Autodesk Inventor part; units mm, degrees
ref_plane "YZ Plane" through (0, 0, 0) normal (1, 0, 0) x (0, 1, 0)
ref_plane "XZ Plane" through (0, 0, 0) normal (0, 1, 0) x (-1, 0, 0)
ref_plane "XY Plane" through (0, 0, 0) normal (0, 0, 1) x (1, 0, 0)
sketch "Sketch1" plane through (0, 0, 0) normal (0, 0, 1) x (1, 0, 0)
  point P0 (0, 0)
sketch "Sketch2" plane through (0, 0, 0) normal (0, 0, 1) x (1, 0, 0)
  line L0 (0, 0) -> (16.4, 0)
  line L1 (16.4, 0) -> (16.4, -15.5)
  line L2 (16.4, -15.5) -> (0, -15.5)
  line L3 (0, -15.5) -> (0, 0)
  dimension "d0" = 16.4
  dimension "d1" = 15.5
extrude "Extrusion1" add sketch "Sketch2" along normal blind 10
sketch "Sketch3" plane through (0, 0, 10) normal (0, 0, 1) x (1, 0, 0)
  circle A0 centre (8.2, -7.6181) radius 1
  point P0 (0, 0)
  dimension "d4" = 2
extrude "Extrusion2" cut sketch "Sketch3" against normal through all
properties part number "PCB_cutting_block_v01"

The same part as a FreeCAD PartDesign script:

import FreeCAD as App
import Part
import Sketcher
Q = App.Units.Quantity

doc = App.newDocument("Part")
params = doc.addObject("Spreadsheet::Sheet", "Params")
for row, (alias, value) in enumerate([
    ("sketch1_width", "16.4 mm"),
    ("sketch1_height", "15.5 mm"),
    ("pad1_length", "10 mm"),
    ("sketch2_diameter", "2 mm"),
], start=1):
    params.set(f"A{row}", alias)
    params.set(f"B{row}", "=" + value)
    params.setAlias(f"B{row}", alias)

body = doc.addObject("PartDesign::Body", "Body")

# Sketch on XY plane
sketch1 = body.newObject("Sketcher::SketchObject", "Sketch")
sketch1.AttachmentSupport = (doc.getObject("XY_Plane"), [""])
sketch1.MapMode = "FlatFace"
sketch1.addGeometry(Part.LineSegment(App.Vector(16.4, 0, 0), App.Vector(0, 0, 0)), False)
sketch1.addGeometry(Part.LineSegment(App.Vector(0, 0, 0), App.Vector(0, -15.5, 0)), False)
sketch1.addGeometry(Part.LineSegment(App.Vector(0, -15.5, 0), App.Vector(16.4, -15.5, 0)), False)
sketch1.addGeometry(Part.LineSegment(App.Vector(16.4, -15.5, 0), App.Vector(16.4, 0, 0)), False)
sketch1.addConstraint(Sketcher.Constraint("Coincident", 0, 2, 1, 1))
sketch1.addConstraint(Sketcher.Constraint("Coincident", 1, 2, 2, 1))
sketch1.addConstraint(Sketcher.Constraint("Coincident", 2, 2, 3, 1))
sketch1.addConstraint(Sketcher.Constraint("Coincident", 3, 2, 0, 1))
sketch1.addConstraint(Sketcher.Constraint("Horizontal", 0))
sketch1.addConstraint(Sketcher.Constraint("Vertical", 1))
sketch1.addConstraint(Sketcher.Constraint("Horizontal", 2))
sketch1.addConstraint(Sketcher.Constraint("Vertical", 3))
sketch1.addConstraint(Sketcher.Constraint("Coincident", 0, 2, -1, 1))
sketch1.addConstraint(Sketcher.Constraint("DistanceX", 0, 2, 0, 1, Q("16.4 mm")))
sketch1.addConstraint(Sketcher.Constraint("DistanceY", 1, 2, 1, 1, Q("15.5 mm")))
sketch1.setExpression("Constraints[9]", "Params.sketch1_width")
sketch1.setExpression("Constraints[10]", "Params.sketch1_height")
pad1 = body.newObject("PartDesign::Pad", "Pad")
pad1.Profile = sketch1
pad1.setExpression("Length", "Params.pad1_length")

# Sketch on XY plane
sketch2 = body.newObject("Sketcher::SketchObject", "Sketch001")
sketch2.AttachmentSupport = (doc.getObject("XY_Plane"), [""])
sketch2.MapMode = "FlatFace"
sketch2.AttachmentOffset = App.Placement(App.Vector(0, 0, 10), App.Rotation())
sketch2.addGeometry(Part.Circle(App.Vector(8.2, -7.6181, 0), App.Vector(0, 0, 1), 1), False)
sketch2.addConstraint(Sketcher.Constraint("Diameter", 0, Q("2 mm")))
sketch2.addConstraint(Sketcher.Constraint("DistanceX", -1, 1, 0, 3, Q("8.2 mm")))
sketch2.addConstraint(Sketcher.Constraint("DistanceY", 0, 3, -1, 1, Q("7.618 mm")))
sketch2.setExpression("Constraints[0]", "Params.sketch2_diameter")
pocket1 = body.newObject("PartDesign::Pocket", "Pocket")
pocket1.Profile = sketch2
pocket1.Type = "ThroughAll"

doc.recompute()
